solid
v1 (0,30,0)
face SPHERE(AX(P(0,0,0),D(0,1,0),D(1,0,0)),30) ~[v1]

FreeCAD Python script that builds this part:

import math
import FreeCAD as App
import Part
import Sketcher
from FreeCAD import Vector
Q = App.Units.Quantity

doc = App.newDocument("Part")
body = doc.addObject("PartDesign::Body", "Body")

# Sketch on XY plane
sketch1 = doc.addObject("Sketcher::SketchObject", "Sketch")
body.addObject(sketch1)
sketch1.AttachmentSupport = (doc.XY_Plane, [""])
sketch1.MapMode = "FlatFace"
sketch1.addGeometry([
    Part.LineSegment(Vector(0, 30, 0), Vector(0, -30, 0)),
    Part.ArcOfCircle(Part.Circle(Vector(0, 0, 0), Vector(0, 0, 1), 30), math.radians(-90), math.radians(90)),
], False)
sketch1.addConstraint([
    Sketcher.Constraint("Coincident", 0, 1, 1, 2),
    Sketcher.Constraint("Coincident", 1, 1, 0, 2),
    Sketcher.Constraint("Vertical", 0),
    Sketcher.Constraint("Coincident", 1, 3, -1, 1),
    Sketcher.Constraint("PointOnObject", 0, 1, -2),
    Sketcher.Constraint("Radius", 1, Q("30 mm")),
])
revolution = doc.addObject("PartDesign::Revolution", "Revolution")
body.addObject(revolution)
revolution.Profile = sketch1
revolution.ReferenceAxis = (sketch1, ["V_Axis"])
revolution.Angle = 360

doc.recompute()
